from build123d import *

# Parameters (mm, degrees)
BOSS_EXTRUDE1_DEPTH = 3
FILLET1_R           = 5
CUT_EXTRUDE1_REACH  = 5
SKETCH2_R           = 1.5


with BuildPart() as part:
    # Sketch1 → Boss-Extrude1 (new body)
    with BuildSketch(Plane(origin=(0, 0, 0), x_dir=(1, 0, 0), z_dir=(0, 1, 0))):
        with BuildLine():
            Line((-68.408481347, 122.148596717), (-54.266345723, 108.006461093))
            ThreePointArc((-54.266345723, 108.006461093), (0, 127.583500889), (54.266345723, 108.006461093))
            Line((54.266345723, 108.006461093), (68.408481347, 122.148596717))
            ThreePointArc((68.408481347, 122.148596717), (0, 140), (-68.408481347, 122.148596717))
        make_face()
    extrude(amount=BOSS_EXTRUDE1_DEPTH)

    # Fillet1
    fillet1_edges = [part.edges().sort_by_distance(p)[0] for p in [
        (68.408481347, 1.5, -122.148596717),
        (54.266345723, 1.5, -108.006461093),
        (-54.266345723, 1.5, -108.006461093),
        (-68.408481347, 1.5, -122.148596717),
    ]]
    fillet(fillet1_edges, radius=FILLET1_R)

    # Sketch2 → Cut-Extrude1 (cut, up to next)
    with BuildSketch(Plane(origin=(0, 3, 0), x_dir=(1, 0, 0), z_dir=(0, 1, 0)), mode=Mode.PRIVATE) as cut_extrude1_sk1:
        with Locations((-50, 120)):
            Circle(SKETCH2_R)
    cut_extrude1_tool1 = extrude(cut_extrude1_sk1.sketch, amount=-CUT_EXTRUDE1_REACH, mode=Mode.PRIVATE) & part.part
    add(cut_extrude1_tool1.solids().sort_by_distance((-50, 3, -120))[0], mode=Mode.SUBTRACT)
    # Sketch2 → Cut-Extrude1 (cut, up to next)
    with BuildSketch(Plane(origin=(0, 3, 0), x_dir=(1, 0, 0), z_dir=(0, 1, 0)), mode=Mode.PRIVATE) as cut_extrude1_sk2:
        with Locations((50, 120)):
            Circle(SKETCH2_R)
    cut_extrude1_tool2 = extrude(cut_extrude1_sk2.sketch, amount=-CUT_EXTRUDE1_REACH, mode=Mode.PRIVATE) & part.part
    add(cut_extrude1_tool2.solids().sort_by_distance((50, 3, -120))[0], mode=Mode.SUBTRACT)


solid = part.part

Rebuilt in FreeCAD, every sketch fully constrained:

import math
import FreeCAD as App
import Part
import Sketcher

V = App.Vector


def edges_at(feature, points):
    """Names of the edges that pass closest to the given points."""
    edges = feature.Shape.Edges
    near = lambda p: min(range(len(edges)), key=lambda i: edges[i].distToShape(Part.Vertex(*p))[0])
    return sorted({f"Edge{near(p) + 1}" for p in points})

doc = App.newDocument("Part")
params = doc.addObject("Spreadsheet::Sheet", "Params")
for row, (alias, value) in enumerate([
    ("sketch1_radius", "85 mm"),
    ("sketch1_radius2", "140 mm"),
    ("sketch1_length", "20 mm"),
    ("pad1_length", "3 mm"),
    ("fillet_radius", "5 mm"),
    ("sketch2_diameter", "3 mm"),
    ("sketch3_diameter", "3 mm"),
], start=1):
    params.set(f"A{row}", alias)
    params.set(f"B{row}", "=" + value)
    params.setAlias(f"B{row}", alias)

body = doc.addObject("PartDesign::Body", "Body")

# Sketch on XZ plane
sketch1 = body.newObject("Sketcher::SketchObject", "Sketch")
sketch1.AttachmentSupport = (doc.getObject("XZ_Plane"), [""])
sketch1.MapMode = "FlatFace"
sketch1.addGeometry(Part.LineSegment(V(-68.408481, -122.148597, 0), V(-54.266346, -108.006461, 0)), False)
sketch1.addGeometry(Part.ArcOfCircle(Part.Circle(V(0, -42.583501, 0), V(0, 0, 1), 85), math.radians(-129.674669), math.radians(-50.325331)), False)
sketch1.addGeometry(Part.LineSegment(V(54.266346, -108.006461, 0), V(68.408481, -122.148597, 0)), False)
sketch1.addGeometry(Part.ArcOfCircle(Part.Circle(V(0, 0, 0), V(0, 0, 1), 140), math.radians(-119.250707), math.radians(-60.749293)), False)
sketch1.addConstraint(Sketcher.Constraint("Coincident", 0, 2, 1, 1))
sketch1.addConstraint(Sketcher.Constraint("Coincident", 1, 2, 2, 1))
sketch1.addConstraint(Sketcher.Constraint("Coincident", 2, 2, 3, 2))
sketch1.addConstraint(Sketcher.Constraint("Coincident", 3, 1, 0, 1))
sketch1.addConstraint(Sketcher.Constraint("Coincident", 3, 3, -1, 1))
sketch1.addConstraint(Sketcher.Constraint("Symmetric", 0, 2, 1, 2, -2))
sketch1.addConstraint(Sketcher.Constraint("Perpendicular", 0, 2))
sketch1.addConstraint(Sketcher.Constraint("Horizontal", 2, 2, 3, 1))
sketch1.addConstraint(Sketcher.Constraint("Radius", 1, 85.0))
sketch1.addConstraint(Sketcher.Constraint("Radius", 3, 140.0))
sketch1.addConstraint(Sketcher.Constraint("Distance", 0, 20.0))
sketch1.addConstraint(Sketcher.Constraint("DistanceY", 1, 3, -1, 1, 42.583501))
sketch1.setExpression("Constraints[8]", "Params.sketch1_radius")
sketch1.setExpression("Constraints[9]", "Params.sketch1_radius2")
sketch1.setExpression("Constraints[10]", "Params.sketch1_length")
pad1 = body.newObject("PartDesign::Pad", "Pad")
pad1.Profile = sketch1
pad1.setExpression("Length", "Params.pad1_length")
pad1.Reversed = True
doc.recompute()

fillet = body.newObject("PartDesign::Fillet", "Fillet")
fillet.Base = (pad1, edges_at(pad1, [
    (68.408, 1.5, -122.149),
    (54.266, 1.5, -108.006),
    (-54.266, 1.5, -108.006),
    (-68.408, 1.5, -122.149),
]))
fillet.setExpression("Radius", "Params.fillet_radius")

# Sketch on XZ plane
sketch2 = body.newObject("Sketcher::SketchObject", "Sketch001")
sketch2.AttachmentSupport = (doc.getObject("XZ_Plane"), [""])
sketch2.MapMode = "FlatFace"
sketch2.AttachmentOffset = App.Placement(V(0, 0, -3), App.Rotation())
sketch2.addGeometry(Part.Circle(V(-50, -120, 0), V(0, 0, 1), 1.5), False)
sketch2.addConstraint(Sketcher.Constraint("Diameter", 0, 3.0))
sketch2.addConstraint(Sketcher.Constraint("DistanceX", 0, 3, -1, 1, 50.0))
sketch2.addConstraint(Sketcher.Constraint("DistanceY", 0, 3, -1, 1, 120.0))
sketch2.setExpression("Constraints[0]", "Params.sketch2_diameter")
pocket1 = body.newObject("PartDesign::Pocket", "Pocket")
pocket1.Profile = sketch2
pocket1.Type = "UpToFirst"
pocket1.Reversed = True

# Sketch on XZ plane
sketch3 = body.newObject("Sketcher::SketchObject", "Sketch002")
sketch3.AttachmentSupport = (doc.getObject("XZ_Plane"), [""])
sketch3.MapMode = "FlatFace"
sketch3.AttachmentOffset = App.Placement(V(0, 0, -3), App.Rotation())
sketch3.addGeometry(Part.Circle(V(50, -120, 0), V(0, 0, 1), 1.5), False)
sketch3.addConstraint(Sketcher.Constraint("Diameter", 0, 3.0))
sketch3.addConstraint(Sketcher.Constraint("DistanceX", -1, 1, 0, 3, 50.0))
sketch3.addConstraint(Sketcher.Constraint("DistanceY", 0, 3, -1, 1, 120.0))
sketch3.setExpression("Constraints[0]", "Params.sketch3_diameter")
pocket2 = body.newObject("PartDesign::Pocket", "Pocket001")
pocket2.Profile = sketch3
pocket2.Type = "UpToFirst"
pocket2.Reversed = True

doc.recompute()
